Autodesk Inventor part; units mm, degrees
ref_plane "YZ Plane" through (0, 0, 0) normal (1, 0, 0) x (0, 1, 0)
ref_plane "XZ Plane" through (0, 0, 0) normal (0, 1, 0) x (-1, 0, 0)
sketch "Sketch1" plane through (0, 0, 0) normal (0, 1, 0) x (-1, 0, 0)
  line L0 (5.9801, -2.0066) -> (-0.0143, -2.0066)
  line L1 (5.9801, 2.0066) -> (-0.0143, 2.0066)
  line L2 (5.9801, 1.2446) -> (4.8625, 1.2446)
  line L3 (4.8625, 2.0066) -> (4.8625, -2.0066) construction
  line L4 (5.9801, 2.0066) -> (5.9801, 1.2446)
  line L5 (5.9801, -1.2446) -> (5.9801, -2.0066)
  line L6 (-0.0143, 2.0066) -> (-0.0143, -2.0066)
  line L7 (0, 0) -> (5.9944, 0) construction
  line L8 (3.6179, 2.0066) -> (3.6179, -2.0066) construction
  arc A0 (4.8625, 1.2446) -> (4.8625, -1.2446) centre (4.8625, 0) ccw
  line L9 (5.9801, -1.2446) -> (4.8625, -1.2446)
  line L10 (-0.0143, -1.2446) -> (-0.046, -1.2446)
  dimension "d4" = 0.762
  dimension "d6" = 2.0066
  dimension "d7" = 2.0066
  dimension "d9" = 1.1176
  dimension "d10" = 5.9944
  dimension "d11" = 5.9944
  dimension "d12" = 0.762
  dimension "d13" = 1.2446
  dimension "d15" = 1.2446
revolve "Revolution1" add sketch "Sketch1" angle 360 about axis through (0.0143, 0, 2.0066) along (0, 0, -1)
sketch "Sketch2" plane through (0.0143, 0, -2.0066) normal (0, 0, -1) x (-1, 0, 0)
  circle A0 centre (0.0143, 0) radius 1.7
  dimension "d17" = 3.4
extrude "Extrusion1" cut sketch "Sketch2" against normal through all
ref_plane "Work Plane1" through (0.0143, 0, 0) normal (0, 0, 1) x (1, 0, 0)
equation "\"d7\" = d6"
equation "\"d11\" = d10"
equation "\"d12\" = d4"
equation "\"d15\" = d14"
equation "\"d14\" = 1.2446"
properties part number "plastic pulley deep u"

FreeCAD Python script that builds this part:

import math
import FreeCAD as App
import Part
import Sketcher
from FreeCAD import Vector
Q = App.Units.Quantity

doc = App.newDocument("Part")
params = doc.addObject("Spreadsheet::Sheet", "Params")
for row, (alias, value) in enumerate([
    ("sketch1_radius", "0.049 in"),
    ("sketch1_height", "0.03 in"),
    ("sketch1_width", "0.236 in"),
    ("sketch1_width2", "0.044 in"),
    ("revolution_angle", "360 deg"),
], start=1):
    params.set(f"A{row}", alias)
    params.set(f"B{row}", "=" + value)
    params.setAlias(f"B{row}", alias)

body = doc.addObject("PartDesign::Body", "Body")

# Sketch on XZ plane
sketch1 = body.newObject("Sketcher::SketchObject", "Sketch")
sketch1.AttachmentSupport = (doc.getObject("XZ_Plane"), [""])
sketch1.MapMode = "FlatFace"
sketch1.addGeometry(Part.LineSegment(Vector(0, -2, 0), Vector(-6, -2, 0)), False)
sketch1.addGeometry(Part.LineSegment(Vector(-6, -2, 0), Vector(-6, -1.2, 0)), False)
sketch1.addGeometry(Part.LineSegment(Vector(-6, -1.2, 0), Vector(-4.9, -1.2, 0)), False)
sketch1.addGeometry(Part.ArcOfCircle(Part.Circle(Vector(-4.9, 0, 0), Vector(0, 0, 1), 1.2), math.radians(-90), math.radians(90)), False)
sketch1.addGeometry(Part.LineSegment(Vector(-4.9, 1.2, 0), Vector(-6, 1.2, 0)), False)
sketch1.addGeometry(Part.LineSegment(Vector(-6, 1.2, 0), Vector(-6, 2, 0)), False)
sketch1.addGeometry(Part.LineSegment(Vector(-6, 2, 0), Vector(0, 2, 0)), False)
sketch1.addGeometry(Part.LineSegment(Vector(0, 2, 0), Vector(0, -2, 0)), False)
sketch1.addGeometry(Part.LineSegment(Vector(0, 2, 0), Vector(0, -2, 0)), True)  # axis
sketch1.addConstraint(Sketcher.Constraint("Coincident", 0, 2, 1, 1))
sketch1.addConstraint(Sketcher.Constraint("Coincident", 1, 2, 2, 1))
sketch1.addConstraint(Sketcher.Constraint("Tangent", 2, 2, 3, 1))
sketch1.addConstraint(Sketcher.Constraint("Tangent", 3, 2, 4, 1))
sketch1.addConstraint(Sketcher.Constraint("Coincident", 4, 2, 5, 1))
sketch1.addConstraint(Sketcher.Constraint("Coincident", 5, 2, 6, 1))
sketch1.addConstraint(Sketcher.Constraint("Coincident", 6, 2, 7, 1))
sketch1.addConstraint(Sketcher.Constraint("Coincident", 7, 2, 0, 1))
sketch1.addConstraint(Sketcher.Constraint("Horizontal", 0))
sketch1.addConstraint(Sketcher.Constraint("Vertical", 1))
sketch1.addConstraint(Sketcher.Constraint("Horizontal", 2))
sketch1.addConstraint(Sketcher.Constraint("Horizontal", 4))
sketch1.addConstraint(Sketcher.Constraint("Vertical", 5))
sketch1.addConstraint(Sketcher.Constraint("Horizontal", 6))
sketch1.addConstraint(Sketcher.Constraint("Vertical", 7))
sketch1.addConstraint(Sketcher.Constraint("Vertical", 8))
sketch1.addConstraint(Sketcher.Constraint("Coincident", 8, 1, 6, 2))
sketch1.addConstraint(Sketcher.Constraint("Symmetric", 1, 2, 4, 2, -1))
sketch1.addConstraint(Sketcher.Constraint("Horizontal", 0, 2, 8, 2))
sketch1.addConstraint(Sketcher.Constraint("Equal", 1, 5))
sketch1.addConstraint(Sketcher.Constraint("Radius", 3, Q("0.049 in")))
sketch1.addConstraint(Sketcher.Constraint("DistanceY", 1, 1, 1, 2, Q("0.03 in")))
sketch1.addConstraint(Sketcher.Constraint("DistanceX", 0, 2, 0, 1, Q("0.236 in")))
sketch1.addConstraint(Sketcher.Constraint("DistanceX", 2, 1, 2, 2, Q("0.044 in")))
sketch1.addConstraint(Sketcher.Constraint("DistanceX", 3, 3, -1, 1, 4.8625))
sketch1.setExpression("Constraints[20]", "Params.sketch1_radius")
sketch1.setExpression("Constraints[21]", "Params.sketch1_height")
sketch1.setExpression("Constraints[22]", "Params.sketch1_width")
sketch1.setExpression("Constraints[23]", "Params.sketch1_width2")
revolution = body.newObject("PartDesign::Revolution", "Revolution")
revolution.Profile = sketch1
revolution.ReferenceAxis = (sketch1, ["Axis0"])
revolution.setExpression("Angle", "Params.revolution_angle")

# Sketch on XY plane
sketch2 = body.newObject("Sketcher::SketchObject", "Sketch001")
sketch2.AttachmentSupport = (doc.getObject("XY_Plane"), [""])
sketch2.MapMode = "FlatFace"
sketch2.AttachmentOffset = App.Placement(Vector(0, 0, -0.079 * 25.4), App.Rotation())
sketch2.addGeometry(Part.Circle(Vector(0, 0, 0), Vector(0, 0, 1), 1.7), False)
sketch2.addConstraint(Sketcher.Constraint("Coincident", 0, 3, -1, 1))
sketch2.addConstraint(Sketcher.Constraint("Diameter", 0, 3.4))
pocket1 = body.newObject("PartDesign::Pocket", "Pocket")
pocket1.Profile = sketch2
pocket1.Type = "ThroughAll"
pocket1.Reversed = True

doc.recompute()
